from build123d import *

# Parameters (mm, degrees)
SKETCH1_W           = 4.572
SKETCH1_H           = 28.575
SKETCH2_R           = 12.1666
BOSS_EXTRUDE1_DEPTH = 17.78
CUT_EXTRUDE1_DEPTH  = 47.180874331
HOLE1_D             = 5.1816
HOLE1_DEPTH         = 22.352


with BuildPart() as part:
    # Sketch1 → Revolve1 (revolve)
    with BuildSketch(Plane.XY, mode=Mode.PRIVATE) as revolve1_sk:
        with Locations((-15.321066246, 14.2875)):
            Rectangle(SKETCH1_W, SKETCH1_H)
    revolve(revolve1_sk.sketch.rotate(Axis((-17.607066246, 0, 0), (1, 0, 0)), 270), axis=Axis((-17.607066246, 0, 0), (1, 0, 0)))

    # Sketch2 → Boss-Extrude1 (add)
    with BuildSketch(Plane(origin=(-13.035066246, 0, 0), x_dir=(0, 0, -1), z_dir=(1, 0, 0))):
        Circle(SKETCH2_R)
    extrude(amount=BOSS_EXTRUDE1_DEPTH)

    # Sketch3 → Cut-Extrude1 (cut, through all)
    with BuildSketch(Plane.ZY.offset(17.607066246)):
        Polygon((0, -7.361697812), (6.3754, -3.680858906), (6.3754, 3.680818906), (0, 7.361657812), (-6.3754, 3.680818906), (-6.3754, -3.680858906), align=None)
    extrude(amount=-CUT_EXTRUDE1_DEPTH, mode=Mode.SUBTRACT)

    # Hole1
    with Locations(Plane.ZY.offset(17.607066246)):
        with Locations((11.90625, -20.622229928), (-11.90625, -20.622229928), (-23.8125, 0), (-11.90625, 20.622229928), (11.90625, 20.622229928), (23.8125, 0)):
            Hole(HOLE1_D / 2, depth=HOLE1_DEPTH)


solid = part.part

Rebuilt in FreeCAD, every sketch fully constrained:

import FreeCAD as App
import Part
import Sketcher

V = App.Vector
Q = App.Units.Quantity


def add_polygon(sketch, points):
    """Adds a closed chain of lines whose ends are joined by coincident constraints."""
    first, n = sketch.GeometryCount, len(points)
    for a, b in zip(points, points[1:] + points[:1]):
        sketch.addGeometry(Part.LineSegment(App.Vector(*a, 0), App.Vector(*b, 0)), False)
    for i in range(n):
        sketch.addConstraint(Sketcher.Constraint("Coincident", first + i, 2, first + (i + 1) % n, 1))

doc = App.newDocument("Part")
params = doc.addObject("Spreadsheet::Sheet", "Params")
for row, (alias, value) in enumerate([
    ("sketch1_width", "0.18 in"),
    ("sketch1_height", "1.125 in"),
    ("revolution_angle", "360 deg"),
    ("sketch2_diameter", "0.958 in"),
    ("pad1_length", "0.7 in"),
    ("sketch4_diameter", "0.204 in"),
    ("hole_diameter", "0.204 in"),
    ("hole_depth", "0.88 in"),
], start=1):
    params.set(f"A{row}", alias)
    params.set(f"B{row}", "=" + value)
    params.setAlias(f"B{row}", alias)

body = doc.addObject("PartDesign::Body", "Body")

sketch1 = doc.addObject("Sketcher::SketchObject", "Sketch")
body.addObject(sketch1)
sketch1.AttachmentSupport = (doc.XY_Plane, [""])
sketch1.MapMode = "FlatFace"
add_polygon(sketch1, [(-17.6, 28.6), (-17.6, 0), (-13, 0), (-13, 28.6)])
sketch1.addConstraint([
    Sketcher.Constraint("Vertical", 0),
    Sketcher.Constraint("Horizontal", 1),
    Sketcher.Constraint("Vertical", 2),
    Sketcher.Constraint("Horizontal", 3),
    Sketcher.Constraint("PointOnObject", 0, 2, -1),
    Sketcher.Constraint("DistanceX", 1, 1, 1, 2, Q("0.18 in")),
    Sketcher.Constraint("DistanceY", 0, 2, 0, 1, Q("1.125 in")),
    Sketcher.Constraint("DistanceX", 0, 2, -1, 1, Q("17.607066 mm")),
])
sketch1.setExpression("Constraints[9]", "Params.sketch1_width")
sketch1.setExpression("Constraints[10]", "Params.sketch1_height")
revolution = doc.addObject("PartDesign::Revolution", "Revolution")
body.addObject(revolution)
revolution.Profile = sketch1
revolution.ReferenceAxis = (sketch1, ["H_Axis"])
revolution.setExpression("Angle", "Params.revolution_angle")

sketch2 = doc.addObject("Sketcher::SketchObject", "Sketch001")
body.addObject(sketch2)
sketch2.AttachmentSupport = (doc.YZ_Plane, [""])
sketch2.MapMode = "FlatFace"
sketch2.AttachmentOffset = App.Placement(V(0, 0, -13.035066), App.Rotation())
sketch2.addGeometry(Part.Circle(V(0, 0, 0), V(0, 0, 1), 12), False)
sketch2.addConstraint([
    Sketcher.Constraint("Coincident", 0, 3, -1, 1),
    Sketcher.Constraint("Diameter", 0, Q("0.958 in")),
])
sketch2.setExpression("Constraints[1]", "Params.sketch2_diameter")
pad1 = doc.addObject("PartDesign::Pad", "Pad")
body.addObject(pad1)
pad1.Profile = sketch2
pad1.setExpression("Length", "Params.pad1_length")

sketch3 = doc.addObject("Sketcher::SketchObject", "Sketch002")
body.addObject(sketch3)
sketch3.AttachmentSupport = (doc.YZ_Plane, [""])
sketch3.MapMode = "FlatFace"
sketch3.AttachmentOffset = App.Placement(V(0, 0, -17.607066), App.Rotation())
add_polygon(sketch3, [(-7, 0), (-4, 6), (4, 6), (7, 0), (4, -6), (-4, -6)])
sketch3.addConstraint([
    Sketcher.Constraint("Horizontal", 1),
    Sketcher.Constraint("Horizontal", 4),
    Sketcher.Constraint("Symmetric", 1, 2, 3, 2, -1),
    Sketcher.Constraint("PointOnObject", 2, 2, -1),
    Sketcher.Constraint("PointOnObject", 5, 2, -1),
    Sketcher.Constraint("Parallel", 0, 3),
    Sketcher.Constraint("Parallel", 2, 5),
    Sketcher.Constraint("Angle", 0, Q("60 deg")),
    Sketcher.Constraint("DistanceY", -1, 1, 0, 2, Q("0.251 in")),
    Sketcher.Constraint("DistanceX", 1, 1, 1, 2, Q("7.361678 mm")),
    Sketcher.Constraint("DistanceX", 0, 2, -1, 1, Q("3.680859 mm")),
])
pocket1 = doc.addObject("PartDesign::Pocket", "Pocket")
body.addObject(pocket1)
pocket1.Profile = sketch3
pocket1.Type = "ThroughAll"
pocket1.Reversed = True

sketch4 = doc.addObject("Sketcher::SketchObject", "Sketch003")
body.addObject(sketch4)
sketch4.AttachmentSupport = (doc.YZ_Plane, [""])
sketch4.MapMode = "FlatFace"
sketch4.AttachmentOffset = App.Placement(V(0, 0, -17.607066), App.Rotation())
sketch4.addGeometry([
    Part.Circle(V(-20.6, 11.9, 0), V(0, 0, 1), 2.6),
    Part.Circle(V(-20.6, -11.9, 0), V(0, 0, 1), 2.6),
    Part.Circle(V(0, -23.8, 0), V(0, 0, 1), 2.6),
    Part.Circle(V(20.6, -11.9, 0), V(0, 0, 1), 2.6),
    Part.Circle(V(20.6, 11.9, 0), V(0, 0, 1), 2.6),
    Part.Circle(V(0, 23.8, 0), V(0, 0, 1), 2.6),
], False)
sketch4.addConstraint([
    Sketcher.Constraint("Equal", 0, 1),
    Sketcher.Constraint("Equal", 1, 2),
    Sketcher.Constraint("Equal", 2, 3),
    Sketcher.Constraint("Equal", 3, 4),
    Sketcher.Constraint("Equal", 4, 5),
    Sketcher.Constraint("Symmetric", 0, 3, 3, 3, -1, 1),
    Sketcher.Constraint("Symmetric", 1, 3, 4, 3, -1, 1),
    Sketcher.Constraint("Symmetric", 2, 3, 5, 3, -1, 1),
    Sketcher.Constraint("Symmetric", 1, 3, 3, 3, -2),
    Sketcher.Constraint("PointOnObject", 2, 3, -2),
    Sketcher.Constraint("Diameter", 0, Q("0.204 in")),
    Sketcher.Constraint("DistanceY", -1, 1, 0, 3, Q("0.46875 in")),
    Sketcher.Constraint("DistanceY", 2, 3, -1, 1, Q("0.9375 in")),
    Sketcher.Constraint("DistanceX", 0, 3, -1, 1, Q("20.62223 mm")),
])
sketch4.setExpression("Constraints[10]", "Params.sketch4_diameter")
doc.recompute()
hole = doc.addObject("PartDesign::Hole", "Hole")
body.addObject(hole)
hole.Profile = sketch4
hole.ThreadType = "None"
hole.setExpression("Diameter", "Params.hole_diameter")
hole.DepthType = "Dimension"
hole.setExpression("Depth", "Params.hole_depth")
hole.DrillPoint = "Flat"
hole.Reversed = True

doc.recompute()
